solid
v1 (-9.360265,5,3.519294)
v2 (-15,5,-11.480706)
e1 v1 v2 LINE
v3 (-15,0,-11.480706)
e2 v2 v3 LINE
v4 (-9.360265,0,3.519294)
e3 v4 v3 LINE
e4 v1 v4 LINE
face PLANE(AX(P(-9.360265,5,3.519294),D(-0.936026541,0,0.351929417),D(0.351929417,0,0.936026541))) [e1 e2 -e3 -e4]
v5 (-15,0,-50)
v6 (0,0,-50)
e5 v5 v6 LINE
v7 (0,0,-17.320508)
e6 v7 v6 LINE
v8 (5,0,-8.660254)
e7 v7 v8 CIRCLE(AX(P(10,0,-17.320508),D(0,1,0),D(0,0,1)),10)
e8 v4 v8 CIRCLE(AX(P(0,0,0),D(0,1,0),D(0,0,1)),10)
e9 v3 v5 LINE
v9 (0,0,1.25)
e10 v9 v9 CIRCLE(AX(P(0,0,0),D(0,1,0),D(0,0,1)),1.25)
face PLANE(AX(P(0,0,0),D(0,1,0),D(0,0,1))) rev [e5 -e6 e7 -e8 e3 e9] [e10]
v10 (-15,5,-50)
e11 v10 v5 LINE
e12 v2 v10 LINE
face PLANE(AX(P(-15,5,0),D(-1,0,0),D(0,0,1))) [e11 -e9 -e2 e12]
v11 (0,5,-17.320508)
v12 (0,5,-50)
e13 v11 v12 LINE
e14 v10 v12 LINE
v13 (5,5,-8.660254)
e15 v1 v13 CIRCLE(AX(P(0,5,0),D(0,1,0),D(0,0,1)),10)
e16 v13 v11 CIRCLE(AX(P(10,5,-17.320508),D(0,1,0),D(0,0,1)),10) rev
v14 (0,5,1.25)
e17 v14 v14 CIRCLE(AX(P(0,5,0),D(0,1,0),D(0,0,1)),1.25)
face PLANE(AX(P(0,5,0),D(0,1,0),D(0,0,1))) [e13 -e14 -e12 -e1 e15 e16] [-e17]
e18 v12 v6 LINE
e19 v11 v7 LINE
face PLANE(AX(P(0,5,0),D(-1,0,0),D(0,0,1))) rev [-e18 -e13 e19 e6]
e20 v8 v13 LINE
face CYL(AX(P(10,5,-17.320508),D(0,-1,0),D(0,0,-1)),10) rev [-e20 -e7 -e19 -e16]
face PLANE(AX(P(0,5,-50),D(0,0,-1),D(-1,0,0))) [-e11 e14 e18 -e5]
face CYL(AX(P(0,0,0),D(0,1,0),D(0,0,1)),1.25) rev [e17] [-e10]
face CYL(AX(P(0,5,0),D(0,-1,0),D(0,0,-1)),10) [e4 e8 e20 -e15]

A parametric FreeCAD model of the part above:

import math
import FreeCAD as App
import Part
import Sketcher

V = App.Vector
Q = App.Units.Quantity


def edges_at(feature, points):
    """Names of the edges that pass closest to the given points."""
    edges = feature.Shape.Edges
    near = lambda p: min(range(len(edges)), key=lambda i: edges[i].distToShape(Part.Vertex(*p))[0])
    return sorted({f"Edge{near(p) + 1}" for p in points})

doc = App.newDocument("Part")
body = doc.addObject("PartDesign::Body", "Body")

sketch1 = body.newObject("Sketcher::SketchObject", "Sketch")
sketch1.AttachmentSupport = (doc.getObject("XZ_Plane"), [""])
sketch1.MapMode = "FlatFace"
sketch1.addGeometry(Part.LineSegment(V(0, -10, 0), V(0, -50, 0)), False)
sketch1.addGeometry(Part.LineSegment(V(0, -50, 0), V(-15, -50, 0)), False)
sketch1.addGeometry(Part.LineSegment(V(-15, -50, 0), V(-15, -11, 0)), False)
sketch1.addGeometry(Part.LineSegment(V(-15, -11, 0), V(-9, 4, 0)), False)
sketch1.addGeometry(Part.ArcOfCircle(Part.Circle(V(0, 0, 0), V(0, 0, 1), 10), math.radians(-90), math.radians(159)), False)
sketch1.addConstraint(Sketcher.Constraint("Coincident", 0, 2, 1, 1))
sketch1.addConstraint(Sketcher.Constraint("Coincident", 1, 2, 2, 1))
sketch1.addConstraint(Sketcher.Constraint("Coincident", 2, 2, 3, 1))
sketch1.addConstraint(Sketcher.Constraint("Tangent", 3, 2, 4, 2))
sketch1.addConstraint(Sketcher.Constraint("Coincident", 4, 1, 0, 1))
sketch1.addConstraint(Sketcher.Constraint("Vertical", 0))
sketch1.addConstraint(Sketcher.Constraint("Horizontal", 1))
sketch1.addConstraint(Sketcher.Constraint("Vertical", 2))
sketch1.addConstraint(Sketcher.Constraint("Coincident", 4, 3, -1, 1))
sketch1.addConstraint(Sketcher.Constraint("PointOnObject", 0, 2, -2))
sketch1.addConstraint(Sketcher.Constraint("Radius", 4, Q("10 mm")))
sketch1.addConstraint(Sketcher.Constraint("DistanceX", 1, 2, 1, 1, Q("15 mm")))
sketch1.addConstraint(Sketcher.Constraint("DistanceY", 0, 2, 0, 1, Q("40 mm")))
sketch1.addConstraint(Sketcher.Constraint("DistanceY", 2, 2, 3, 2, Q("15 mm")))
pad1 = body.newObject("PartDesign::Pad", "Pad")
pad1.Profile = sketch1
pad1.Length = 5
pad1.Reversed = True
doc.recompute()

fillet = body.newObject("PartDesign::Fillet", "Fillet")
fillet.Base = (pad1, edges_at(pad1, [(0, 2.5, -10)]))
fillet.Radius = 10

sketch2 = body.newObject("Sketcher::SketchObject", "Sketch001")
sketch2.AttachmentSupport = (doc.getObject("XZ_Plane"), [""])
sketch2.MapMode = "FlatFace"
sketch2.AttachmentOffset = App.Placement(V(0, 0, -5), App.Rotation())
sketch2.addGeometry(Part.Circle(V(0, 0, 0), V(0, 0, 1), 1.2), False)
sketch2.addConstraint(Sketcher.Constraint("Coincident", 0, 3, -1, 1))
sketch2.addConstraint(Sketcher.Constraint("Diameter", 0, Q("2.5 mm")))
pocket1 = body.newObject("PartDesign::Pocket", "Pocket")
pocket1.Profile = sketch2
pocket1.Type = "ThroughAll"
pocket1.Reversed = True

doc.recompute()
